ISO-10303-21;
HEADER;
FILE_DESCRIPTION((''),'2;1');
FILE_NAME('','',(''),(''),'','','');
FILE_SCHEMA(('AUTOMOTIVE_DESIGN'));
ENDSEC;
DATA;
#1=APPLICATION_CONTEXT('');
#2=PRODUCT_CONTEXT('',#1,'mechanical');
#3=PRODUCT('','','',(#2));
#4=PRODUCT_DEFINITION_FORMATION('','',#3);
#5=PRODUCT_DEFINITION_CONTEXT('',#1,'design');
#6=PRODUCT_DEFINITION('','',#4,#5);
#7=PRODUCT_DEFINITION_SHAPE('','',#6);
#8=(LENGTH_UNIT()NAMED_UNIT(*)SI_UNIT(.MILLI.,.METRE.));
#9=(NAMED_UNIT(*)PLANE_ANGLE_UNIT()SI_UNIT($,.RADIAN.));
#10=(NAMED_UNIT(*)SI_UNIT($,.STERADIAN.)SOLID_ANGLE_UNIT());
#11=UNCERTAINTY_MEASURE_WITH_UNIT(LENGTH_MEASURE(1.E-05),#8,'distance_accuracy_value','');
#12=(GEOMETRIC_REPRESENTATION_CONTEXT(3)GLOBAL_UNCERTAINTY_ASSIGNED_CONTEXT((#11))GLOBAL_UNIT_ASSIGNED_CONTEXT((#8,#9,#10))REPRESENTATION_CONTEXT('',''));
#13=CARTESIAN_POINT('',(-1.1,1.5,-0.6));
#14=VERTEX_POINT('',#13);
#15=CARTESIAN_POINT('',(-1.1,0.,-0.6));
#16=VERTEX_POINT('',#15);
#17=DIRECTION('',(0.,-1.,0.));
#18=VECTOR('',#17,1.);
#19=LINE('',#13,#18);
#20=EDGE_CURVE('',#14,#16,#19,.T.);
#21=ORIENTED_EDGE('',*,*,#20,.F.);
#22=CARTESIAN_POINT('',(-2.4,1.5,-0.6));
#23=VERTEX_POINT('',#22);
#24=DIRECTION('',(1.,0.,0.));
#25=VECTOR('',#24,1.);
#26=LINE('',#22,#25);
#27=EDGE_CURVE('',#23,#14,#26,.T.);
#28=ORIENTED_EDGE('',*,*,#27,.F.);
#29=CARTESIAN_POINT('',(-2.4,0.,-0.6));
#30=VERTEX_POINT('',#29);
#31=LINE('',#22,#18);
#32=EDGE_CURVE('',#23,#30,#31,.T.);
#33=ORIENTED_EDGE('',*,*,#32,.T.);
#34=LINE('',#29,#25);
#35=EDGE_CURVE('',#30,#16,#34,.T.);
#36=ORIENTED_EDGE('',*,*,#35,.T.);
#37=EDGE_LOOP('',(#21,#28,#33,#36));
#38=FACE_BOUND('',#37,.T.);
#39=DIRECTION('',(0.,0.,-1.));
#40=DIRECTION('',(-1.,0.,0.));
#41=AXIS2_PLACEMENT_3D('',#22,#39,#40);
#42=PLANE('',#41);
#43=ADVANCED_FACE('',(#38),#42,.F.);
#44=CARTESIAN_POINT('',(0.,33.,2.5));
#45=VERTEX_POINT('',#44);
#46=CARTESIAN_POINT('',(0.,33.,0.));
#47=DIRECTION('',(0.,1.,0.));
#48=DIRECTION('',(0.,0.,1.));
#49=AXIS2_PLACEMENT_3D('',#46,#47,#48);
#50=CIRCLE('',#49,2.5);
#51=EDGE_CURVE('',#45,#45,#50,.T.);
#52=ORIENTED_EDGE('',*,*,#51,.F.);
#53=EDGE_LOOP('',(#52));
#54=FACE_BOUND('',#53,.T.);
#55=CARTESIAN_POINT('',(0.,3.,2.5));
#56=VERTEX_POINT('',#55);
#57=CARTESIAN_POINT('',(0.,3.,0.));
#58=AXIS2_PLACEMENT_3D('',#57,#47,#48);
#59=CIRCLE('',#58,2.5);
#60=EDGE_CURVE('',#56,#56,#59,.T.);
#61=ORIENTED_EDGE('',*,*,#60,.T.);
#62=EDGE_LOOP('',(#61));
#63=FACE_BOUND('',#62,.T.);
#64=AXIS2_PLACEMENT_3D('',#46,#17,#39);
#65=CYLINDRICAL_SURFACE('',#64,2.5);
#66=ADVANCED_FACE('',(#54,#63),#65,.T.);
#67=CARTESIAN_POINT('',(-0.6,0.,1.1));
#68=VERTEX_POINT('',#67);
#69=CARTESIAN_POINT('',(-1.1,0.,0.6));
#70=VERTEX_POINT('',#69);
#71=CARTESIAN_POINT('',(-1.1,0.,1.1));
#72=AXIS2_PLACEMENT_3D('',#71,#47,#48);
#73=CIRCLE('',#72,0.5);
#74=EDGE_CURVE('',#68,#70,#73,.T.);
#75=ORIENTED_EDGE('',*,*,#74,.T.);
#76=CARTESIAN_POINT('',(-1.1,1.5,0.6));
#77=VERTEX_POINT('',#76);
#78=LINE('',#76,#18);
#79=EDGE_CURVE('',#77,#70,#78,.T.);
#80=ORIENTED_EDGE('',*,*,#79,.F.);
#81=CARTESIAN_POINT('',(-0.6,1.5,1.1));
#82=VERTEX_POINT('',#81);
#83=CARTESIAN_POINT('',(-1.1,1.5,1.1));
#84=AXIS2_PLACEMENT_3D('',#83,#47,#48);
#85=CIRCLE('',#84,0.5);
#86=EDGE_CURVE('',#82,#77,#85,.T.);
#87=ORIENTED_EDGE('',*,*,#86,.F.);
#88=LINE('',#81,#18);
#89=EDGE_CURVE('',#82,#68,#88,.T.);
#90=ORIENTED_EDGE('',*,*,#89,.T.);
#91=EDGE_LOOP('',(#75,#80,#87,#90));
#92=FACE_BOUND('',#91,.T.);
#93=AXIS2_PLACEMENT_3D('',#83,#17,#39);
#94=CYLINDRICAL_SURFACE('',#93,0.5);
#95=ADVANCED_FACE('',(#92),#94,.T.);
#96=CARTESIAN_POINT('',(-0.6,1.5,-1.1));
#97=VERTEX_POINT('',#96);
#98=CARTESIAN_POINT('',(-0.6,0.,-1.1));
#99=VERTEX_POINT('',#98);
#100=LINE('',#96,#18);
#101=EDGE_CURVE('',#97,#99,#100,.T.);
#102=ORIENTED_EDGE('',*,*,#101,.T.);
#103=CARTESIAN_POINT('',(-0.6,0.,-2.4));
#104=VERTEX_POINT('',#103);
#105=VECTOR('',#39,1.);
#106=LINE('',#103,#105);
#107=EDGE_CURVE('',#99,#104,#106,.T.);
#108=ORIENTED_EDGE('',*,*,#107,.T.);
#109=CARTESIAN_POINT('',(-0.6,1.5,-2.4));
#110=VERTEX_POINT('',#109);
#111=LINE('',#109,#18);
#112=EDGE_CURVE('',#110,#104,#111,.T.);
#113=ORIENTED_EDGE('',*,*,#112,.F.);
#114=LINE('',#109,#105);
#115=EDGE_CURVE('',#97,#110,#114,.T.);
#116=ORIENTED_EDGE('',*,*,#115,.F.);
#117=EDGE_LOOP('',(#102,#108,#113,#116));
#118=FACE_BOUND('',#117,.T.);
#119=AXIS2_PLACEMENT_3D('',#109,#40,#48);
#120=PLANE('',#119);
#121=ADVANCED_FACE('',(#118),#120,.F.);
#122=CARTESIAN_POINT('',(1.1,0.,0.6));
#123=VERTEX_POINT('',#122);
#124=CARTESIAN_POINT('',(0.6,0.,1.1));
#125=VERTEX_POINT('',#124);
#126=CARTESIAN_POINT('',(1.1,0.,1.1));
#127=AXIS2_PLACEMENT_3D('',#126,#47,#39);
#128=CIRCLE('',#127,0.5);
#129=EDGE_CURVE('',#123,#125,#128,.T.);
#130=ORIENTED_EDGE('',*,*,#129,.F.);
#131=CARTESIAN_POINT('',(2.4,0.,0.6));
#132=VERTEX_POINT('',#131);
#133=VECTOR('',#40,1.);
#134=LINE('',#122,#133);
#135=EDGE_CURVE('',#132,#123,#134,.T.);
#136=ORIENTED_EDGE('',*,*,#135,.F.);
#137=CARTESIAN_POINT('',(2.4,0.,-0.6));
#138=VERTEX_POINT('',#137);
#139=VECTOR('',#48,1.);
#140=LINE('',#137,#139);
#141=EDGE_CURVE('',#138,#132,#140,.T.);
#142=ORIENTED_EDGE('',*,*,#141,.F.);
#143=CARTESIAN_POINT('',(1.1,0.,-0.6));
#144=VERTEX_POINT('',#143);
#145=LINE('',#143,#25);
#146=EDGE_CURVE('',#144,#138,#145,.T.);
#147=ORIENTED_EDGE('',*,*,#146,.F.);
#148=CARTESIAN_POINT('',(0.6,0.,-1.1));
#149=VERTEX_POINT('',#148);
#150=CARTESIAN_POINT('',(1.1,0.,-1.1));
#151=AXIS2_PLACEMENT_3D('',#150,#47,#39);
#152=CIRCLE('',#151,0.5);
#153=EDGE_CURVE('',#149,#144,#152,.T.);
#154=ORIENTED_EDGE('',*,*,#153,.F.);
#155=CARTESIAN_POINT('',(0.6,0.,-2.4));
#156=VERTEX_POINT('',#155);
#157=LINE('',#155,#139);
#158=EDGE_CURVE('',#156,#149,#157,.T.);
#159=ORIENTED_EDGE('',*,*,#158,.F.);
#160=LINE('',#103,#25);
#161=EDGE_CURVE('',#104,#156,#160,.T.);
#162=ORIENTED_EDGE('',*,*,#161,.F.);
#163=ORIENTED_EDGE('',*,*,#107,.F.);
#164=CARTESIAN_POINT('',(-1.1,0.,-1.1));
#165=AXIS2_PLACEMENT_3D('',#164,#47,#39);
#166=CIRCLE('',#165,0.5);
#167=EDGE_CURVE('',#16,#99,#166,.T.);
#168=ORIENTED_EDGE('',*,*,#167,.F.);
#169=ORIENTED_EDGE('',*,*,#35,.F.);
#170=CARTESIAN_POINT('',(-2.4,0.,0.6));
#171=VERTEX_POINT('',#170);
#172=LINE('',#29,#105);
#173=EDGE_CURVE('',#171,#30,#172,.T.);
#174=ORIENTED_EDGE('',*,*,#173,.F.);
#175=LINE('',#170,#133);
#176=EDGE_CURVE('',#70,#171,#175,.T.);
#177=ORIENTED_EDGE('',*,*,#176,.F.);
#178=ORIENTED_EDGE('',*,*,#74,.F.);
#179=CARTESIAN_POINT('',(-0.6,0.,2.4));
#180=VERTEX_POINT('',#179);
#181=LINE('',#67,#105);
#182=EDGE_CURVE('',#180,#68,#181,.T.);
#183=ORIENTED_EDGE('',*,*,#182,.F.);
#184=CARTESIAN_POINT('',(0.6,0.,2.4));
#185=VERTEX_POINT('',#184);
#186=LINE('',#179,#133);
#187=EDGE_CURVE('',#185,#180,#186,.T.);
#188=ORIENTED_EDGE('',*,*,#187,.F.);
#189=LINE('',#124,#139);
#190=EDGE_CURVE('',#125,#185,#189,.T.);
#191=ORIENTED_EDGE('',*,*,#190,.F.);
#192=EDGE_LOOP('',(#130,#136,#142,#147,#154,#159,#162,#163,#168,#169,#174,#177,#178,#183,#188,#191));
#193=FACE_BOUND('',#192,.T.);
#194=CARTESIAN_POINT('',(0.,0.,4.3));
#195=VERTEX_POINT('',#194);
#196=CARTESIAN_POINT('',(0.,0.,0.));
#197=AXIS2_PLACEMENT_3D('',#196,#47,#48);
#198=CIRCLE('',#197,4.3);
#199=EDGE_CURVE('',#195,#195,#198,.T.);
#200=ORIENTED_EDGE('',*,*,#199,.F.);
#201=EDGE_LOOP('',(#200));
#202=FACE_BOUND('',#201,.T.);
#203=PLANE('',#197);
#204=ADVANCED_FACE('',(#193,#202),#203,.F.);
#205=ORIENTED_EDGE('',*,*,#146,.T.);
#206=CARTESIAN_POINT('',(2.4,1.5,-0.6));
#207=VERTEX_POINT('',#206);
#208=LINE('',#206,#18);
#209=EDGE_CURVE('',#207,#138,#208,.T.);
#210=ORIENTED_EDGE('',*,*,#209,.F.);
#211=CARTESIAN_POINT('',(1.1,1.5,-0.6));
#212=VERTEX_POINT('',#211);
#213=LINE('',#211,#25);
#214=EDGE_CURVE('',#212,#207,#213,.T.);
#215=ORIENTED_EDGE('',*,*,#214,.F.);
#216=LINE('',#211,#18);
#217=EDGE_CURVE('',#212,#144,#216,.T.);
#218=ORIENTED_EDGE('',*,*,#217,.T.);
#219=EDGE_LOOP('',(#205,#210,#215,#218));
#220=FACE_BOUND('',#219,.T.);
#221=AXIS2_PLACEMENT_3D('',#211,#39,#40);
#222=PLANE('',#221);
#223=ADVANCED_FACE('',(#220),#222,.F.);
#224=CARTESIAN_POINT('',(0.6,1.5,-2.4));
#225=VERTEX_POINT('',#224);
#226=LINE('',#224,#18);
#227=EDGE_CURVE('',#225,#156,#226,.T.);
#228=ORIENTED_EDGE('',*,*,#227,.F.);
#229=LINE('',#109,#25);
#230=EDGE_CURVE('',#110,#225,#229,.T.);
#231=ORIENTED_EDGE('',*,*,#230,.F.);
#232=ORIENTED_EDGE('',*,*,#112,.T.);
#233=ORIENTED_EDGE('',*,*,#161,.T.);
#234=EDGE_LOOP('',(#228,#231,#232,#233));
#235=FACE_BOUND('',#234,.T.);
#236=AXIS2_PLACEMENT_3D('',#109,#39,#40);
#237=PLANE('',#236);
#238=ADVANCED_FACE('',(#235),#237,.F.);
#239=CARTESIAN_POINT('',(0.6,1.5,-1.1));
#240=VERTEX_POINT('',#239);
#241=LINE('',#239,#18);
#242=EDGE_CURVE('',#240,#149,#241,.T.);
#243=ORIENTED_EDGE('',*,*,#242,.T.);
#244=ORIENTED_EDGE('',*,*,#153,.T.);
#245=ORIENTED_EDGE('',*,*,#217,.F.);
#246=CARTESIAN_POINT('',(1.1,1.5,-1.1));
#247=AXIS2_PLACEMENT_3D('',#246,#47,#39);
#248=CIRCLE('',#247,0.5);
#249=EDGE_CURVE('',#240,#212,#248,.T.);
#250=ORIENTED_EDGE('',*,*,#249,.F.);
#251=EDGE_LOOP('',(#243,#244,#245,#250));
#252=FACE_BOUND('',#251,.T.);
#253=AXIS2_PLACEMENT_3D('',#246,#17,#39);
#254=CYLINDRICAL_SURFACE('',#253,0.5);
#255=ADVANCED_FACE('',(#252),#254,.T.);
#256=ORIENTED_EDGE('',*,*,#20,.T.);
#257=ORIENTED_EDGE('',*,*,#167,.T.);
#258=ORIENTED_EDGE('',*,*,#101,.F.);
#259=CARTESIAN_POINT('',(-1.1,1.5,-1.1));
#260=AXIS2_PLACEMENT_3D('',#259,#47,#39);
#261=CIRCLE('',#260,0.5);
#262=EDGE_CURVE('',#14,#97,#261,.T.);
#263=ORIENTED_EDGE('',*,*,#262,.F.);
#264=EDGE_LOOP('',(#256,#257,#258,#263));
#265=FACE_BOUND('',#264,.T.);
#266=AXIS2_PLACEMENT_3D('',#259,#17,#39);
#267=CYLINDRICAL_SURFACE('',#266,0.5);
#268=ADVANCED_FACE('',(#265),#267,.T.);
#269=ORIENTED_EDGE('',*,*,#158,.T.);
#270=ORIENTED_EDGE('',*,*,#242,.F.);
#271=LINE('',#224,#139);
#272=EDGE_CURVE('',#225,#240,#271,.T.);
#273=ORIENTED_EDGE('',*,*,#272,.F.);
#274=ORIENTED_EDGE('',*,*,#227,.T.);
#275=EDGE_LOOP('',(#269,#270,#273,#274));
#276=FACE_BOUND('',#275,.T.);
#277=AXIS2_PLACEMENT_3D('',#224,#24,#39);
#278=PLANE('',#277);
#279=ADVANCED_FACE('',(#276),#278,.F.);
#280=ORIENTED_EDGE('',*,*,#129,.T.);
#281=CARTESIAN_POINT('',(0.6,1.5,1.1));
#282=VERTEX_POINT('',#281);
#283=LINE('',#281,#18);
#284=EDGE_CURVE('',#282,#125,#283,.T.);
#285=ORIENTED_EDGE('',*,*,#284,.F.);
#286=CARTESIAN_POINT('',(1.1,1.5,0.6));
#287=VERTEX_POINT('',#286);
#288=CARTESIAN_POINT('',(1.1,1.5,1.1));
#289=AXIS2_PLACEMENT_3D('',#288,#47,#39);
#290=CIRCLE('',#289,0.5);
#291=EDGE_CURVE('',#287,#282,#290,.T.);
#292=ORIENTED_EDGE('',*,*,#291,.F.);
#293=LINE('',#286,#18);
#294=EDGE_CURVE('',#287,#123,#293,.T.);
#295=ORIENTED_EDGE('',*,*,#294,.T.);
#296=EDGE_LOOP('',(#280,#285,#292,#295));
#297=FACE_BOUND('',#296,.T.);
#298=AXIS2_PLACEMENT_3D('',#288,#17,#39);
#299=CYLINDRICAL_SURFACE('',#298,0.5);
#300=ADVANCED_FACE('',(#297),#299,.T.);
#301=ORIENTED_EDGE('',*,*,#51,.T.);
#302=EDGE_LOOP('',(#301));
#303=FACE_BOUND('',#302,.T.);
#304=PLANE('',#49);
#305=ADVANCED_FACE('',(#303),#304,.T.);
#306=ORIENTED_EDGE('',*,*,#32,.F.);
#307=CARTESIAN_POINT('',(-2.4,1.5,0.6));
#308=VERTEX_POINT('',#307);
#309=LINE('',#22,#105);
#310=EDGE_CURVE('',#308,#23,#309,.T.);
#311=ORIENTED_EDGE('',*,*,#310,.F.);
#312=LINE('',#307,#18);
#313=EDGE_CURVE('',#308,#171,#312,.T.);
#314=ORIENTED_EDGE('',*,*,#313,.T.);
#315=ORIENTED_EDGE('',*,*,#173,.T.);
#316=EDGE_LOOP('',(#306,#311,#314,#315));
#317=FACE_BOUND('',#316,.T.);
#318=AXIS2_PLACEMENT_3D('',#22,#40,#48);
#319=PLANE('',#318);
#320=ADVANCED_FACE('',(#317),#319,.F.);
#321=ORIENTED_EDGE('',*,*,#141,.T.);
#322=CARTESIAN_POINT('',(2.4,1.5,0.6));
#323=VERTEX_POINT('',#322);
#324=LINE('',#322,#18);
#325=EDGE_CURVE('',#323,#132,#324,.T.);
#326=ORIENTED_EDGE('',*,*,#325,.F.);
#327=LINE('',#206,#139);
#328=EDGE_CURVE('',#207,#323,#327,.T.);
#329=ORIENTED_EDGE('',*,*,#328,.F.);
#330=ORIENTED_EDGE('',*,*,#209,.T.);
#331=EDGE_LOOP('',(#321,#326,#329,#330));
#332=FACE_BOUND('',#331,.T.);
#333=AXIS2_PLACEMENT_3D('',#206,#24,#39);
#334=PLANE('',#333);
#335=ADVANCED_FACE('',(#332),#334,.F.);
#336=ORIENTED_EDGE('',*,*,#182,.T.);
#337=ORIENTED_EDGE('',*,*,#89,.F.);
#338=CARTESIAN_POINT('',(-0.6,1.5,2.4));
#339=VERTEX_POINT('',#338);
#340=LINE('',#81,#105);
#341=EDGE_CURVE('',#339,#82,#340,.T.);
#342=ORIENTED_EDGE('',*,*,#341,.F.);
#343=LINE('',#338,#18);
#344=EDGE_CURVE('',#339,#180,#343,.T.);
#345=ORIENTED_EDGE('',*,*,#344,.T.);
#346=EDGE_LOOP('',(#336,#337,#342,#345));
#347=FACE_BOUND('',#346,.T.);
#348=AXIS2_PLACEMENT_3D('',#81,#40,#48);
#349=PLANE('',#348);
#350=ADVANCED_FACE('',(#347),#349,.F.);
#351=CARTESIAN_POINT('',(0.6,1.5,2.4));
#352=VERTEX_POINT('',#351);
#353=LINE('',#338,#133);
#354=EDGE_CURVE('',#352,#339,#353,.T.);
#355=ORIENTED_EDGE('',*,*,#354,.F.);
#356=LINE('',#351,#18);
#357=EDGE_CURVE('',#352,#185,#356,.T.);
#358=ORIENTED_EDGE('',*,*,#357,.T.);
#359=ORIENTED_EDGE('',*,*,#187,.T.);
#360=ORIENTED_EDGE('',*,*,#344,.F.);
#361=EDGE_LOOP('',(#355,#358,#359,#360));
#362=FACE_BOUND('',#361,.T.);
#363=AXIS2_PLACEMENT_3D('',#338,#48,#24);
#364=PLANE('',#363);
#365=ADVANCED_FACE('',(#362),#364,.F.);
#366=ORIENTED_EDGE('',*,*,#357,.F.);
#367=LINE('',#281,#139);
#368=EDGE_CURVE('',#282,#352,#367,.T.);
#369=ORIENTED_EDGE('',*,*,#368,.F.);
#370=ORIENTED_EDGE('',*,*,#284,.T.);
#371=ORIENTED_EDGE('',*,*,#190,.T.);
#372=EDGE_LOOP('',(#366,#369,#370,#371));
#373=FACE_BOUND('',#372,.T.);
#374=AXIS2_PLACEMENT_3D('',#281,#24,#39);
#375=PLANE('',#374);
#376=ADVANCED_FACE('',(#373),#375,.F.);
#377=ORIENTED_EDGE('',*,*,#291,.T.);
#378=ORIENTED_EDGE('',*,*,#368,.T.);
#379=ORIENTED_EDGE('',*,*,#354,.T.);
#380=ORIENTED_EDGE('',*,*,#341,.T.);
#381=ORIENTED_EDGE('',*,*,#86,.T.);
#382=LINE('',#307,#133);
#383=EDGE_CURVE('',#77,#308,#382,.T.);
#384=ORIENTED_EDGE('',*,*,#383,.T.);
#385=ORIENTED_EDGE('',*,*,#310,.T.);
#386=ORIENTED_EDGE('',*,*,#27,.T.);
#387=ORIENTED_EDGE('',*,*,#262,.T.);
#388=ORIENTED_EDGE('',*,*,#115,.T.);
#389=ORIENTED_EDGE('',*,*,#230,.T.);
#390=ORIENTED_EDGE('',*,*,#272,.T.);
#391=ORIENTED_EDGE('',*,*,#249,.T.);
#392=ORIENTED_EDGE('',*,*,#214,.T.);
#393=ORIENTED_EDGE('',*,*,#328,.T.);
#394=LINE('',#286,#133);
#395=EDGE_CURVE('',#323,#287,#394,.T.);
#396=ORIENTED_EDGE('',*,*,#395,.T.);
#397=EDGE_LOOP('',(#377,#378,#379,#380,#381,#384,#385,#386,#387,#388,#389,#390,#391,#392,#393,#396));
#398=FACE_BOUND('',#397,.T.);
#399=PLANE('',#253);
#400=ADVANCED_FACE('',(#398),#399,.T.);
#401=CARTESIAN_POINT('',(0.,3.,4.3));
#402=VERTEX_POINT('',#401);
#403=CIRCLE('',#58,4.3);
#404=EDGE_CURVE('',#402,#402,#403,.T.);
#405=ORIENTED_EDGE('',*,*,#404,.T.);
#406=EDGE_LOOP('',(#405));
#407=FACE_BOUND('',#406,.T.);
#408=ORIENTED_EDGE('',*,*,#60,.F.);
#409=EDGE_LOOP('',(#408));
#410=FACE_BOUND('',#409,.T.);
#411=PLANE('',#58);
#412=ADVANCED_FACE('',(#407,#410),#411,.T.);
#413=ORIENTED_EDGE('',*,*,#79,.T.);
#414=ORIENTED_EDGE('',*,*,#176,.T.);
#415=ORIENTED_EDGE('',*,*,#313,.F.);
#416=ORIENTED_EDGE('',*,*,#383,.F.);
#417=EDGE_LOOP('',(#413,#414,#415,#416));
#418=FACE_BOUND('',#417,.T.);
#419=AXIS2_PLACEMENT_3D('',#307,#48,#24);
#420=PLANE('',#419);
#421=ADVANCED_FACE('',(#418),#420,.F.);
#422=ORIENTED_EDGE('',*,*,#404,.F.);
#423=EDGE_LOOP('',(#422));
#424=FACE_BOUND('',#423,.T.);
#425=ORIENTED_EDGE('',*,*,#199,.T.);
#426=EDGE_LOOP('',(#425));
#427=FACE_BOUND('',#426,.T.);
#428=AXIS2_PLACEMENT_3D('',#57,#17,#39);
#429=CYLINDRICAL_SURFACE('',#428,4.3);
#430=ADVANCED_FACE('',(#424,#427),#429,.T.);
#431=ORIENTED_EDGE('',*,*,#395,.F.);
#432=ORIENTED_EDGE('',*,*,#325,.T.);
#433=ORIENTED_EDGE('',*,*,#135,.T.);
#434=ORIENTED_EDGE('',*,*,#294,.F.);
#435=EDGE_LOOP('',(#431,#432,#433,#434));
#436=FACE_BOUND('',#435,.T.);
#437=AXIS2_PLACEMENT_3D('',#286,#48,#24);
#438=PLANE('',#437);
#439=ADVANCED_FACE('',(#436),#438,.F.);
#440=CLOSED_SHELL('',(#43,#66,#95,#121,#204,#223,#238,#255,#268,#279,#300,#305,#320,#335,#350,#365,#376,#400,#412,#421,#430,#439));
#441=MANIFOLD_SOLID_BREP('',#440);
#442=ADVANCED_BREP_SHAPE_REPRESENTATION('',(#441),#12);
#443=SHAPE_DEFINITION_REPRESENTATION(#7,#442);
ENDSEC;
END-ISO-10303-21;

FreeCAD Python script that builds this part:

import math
import FreeCAD as App
import Part
import Sketcher
from FreeCAD import Vector

doc = App.newDocument("Part")
body = doc.addObject("PartDesign::Body", "Body")

sketch1 = body.newObject("Sketcher::SketchObject", "Sketch")
sketch1.AttachmentSupport = (doc.getObject("XZ_Plane"), [""])
sketch1.MapMode = "FlatFace"
sketch1.addGeometry(Part.Circle(Vector(0, 0, 0), Vector(0, 0, 1), 4.3), False)
sketch1.addConstraint([
    Sketcher.Constraint("Coincident", 0, 3, -1, 1),
    Sketcher.Constraint("Diameter", 0, 8.6),
])
pad1 = body.newObject("PartDesign::Pad", "Pad")
pad1.Profile = sketch1
pad1.Length = 3
pad1.Reversed = True

sketch2 = body.newObject("Sketcher::SketchObject", "Sketch001")
sketch2.AttachmentSupport = (doc.getObject("XZ_Plane"), [""])
sketch2.MapMode = "FlatFace"
sketch2.AttachmentOffset = App.Placement(Vector(0, 0, -3), App.Rotation())
sketch2.addGeometry(Part.Circle(Vector(0, 0, 0), Vector(0, 0, 1), 2.5), False)
sketch2.addConstraint([
    Sketcher.Constraint("Coincident", 0, 3, -1, 1),
    Sketcher.Constraint("Diameter", 0, 5.0),
])
pad2 = body.newObject("PartDesign::Pad", "Pad001")
pad2.Profile = sketch2
pad2.Length = 30
pad2.Reversed = True

sketch3 = body.newObject("Sketcher::SketchObject", "Sketch002")
sketch3.AttachmentSupport = (doc.getObject("XZ_Plane"), [""])
sketch3.MapMode = "FlatFace"
sketch3.addGeometry([
    Part.LineSegment(Vector(-0.6, 2.4, 0), Vector(-0.6, 1.1, 0)),
    Part.ArcOfCircle(Part.Circle(Vector(-1.1, 1.1, 0), Vector(0, 0, 1), 0.5), math.radians(-90), math.radians(0)),
    Part.LineSegment(Vector(-1.1, 0.6, 0), Vector(-2.4, 0.6, 0)),
    Part.LineSegment(Vector(-2.4, 0.6, 0), Vector(-2.4, -0.6, 0)),
    Part.LineSegment(Vector(-2.4, -0.6, 0), Vector(-1.1, -0.6, 0)),
    Part.ArcOfCircle(Part.Circle(Vector(-1.1, -1.1, 0), Vector(0, 0, 1), 0.5), math.radians(0), math.radians(90)),
    Part.LineSegment(Vector(-0.6, -1.1, 0), Vector(-0.6, -2.4, 0)),
    Part.LineSegment(Vector(-0.6, -2.4, 0), Vector(0.6, -2.4, 0)),
    Part.LineSegment(Vector(0.6, -2.4, 0), Vector(0.6, -1.1, 0)),
    Part.ArcOfCircle(Part.Circle(Vector(1.1, -1.1, 0), Vector(0, 0, 1), 0.5), math.radians(90), math.radians(180)),
    Part.LineSegment(Vector(1.1, -0.6, 0), Vector(2.4, -0.6, 0)),
    Part.LineSegment(Vector(2.4, -0.6, 0), Vector(2.4, 0.6, 0)),
    Part.LineSegment(Vector(2.4, 0.6, 0), Vector(1.1, 0.6, 0)),
    Part.ArcOfCircle(Part.Circle(Vector(1.1, 1.1, 0), Vector(0, 0, 1), 0.5), math.radians(180), math.radians(270)),
    Part.LineSegment(Vector(0.6, 1.1, 0), Vector(0.6, 2.4, 0)),
    Part.LineSegment(Vector(0.6, 2.4, 0), Vector(-0.6, 2.4, 0)),
], False)
sketch3.addConstraint([
    Sketcher.Constraint("Tangent", 0, 2, 1, 2),
    Sketcher.Constraint("Tangent", 1, 1, 2, 1),
    Sketcher.Constraint("Coincident", 2, 2, 3, 1),
    Sketcher.Constraint("Coincident", 3, 2, 4, 1),
    Sketcher.Constraint("Tangent", 4, 2, 5, 2),
    Sketcher.Constraint("Tangent", 5, 1, 6, 1),
    Sketcher.Constraint("Coincident", 6, 2, 7, 1),
    Sketcher.Constraint("Coincident", 7, 2, 8, 1),
    Sketcher.Constraint("Tangent", 8, 2, 9, 2),
    Sketcher.Constraint("Tangent", 9, 1, 10, 1),
    Sketcher.Constraint("Coincident", 10, 2, 11, 1),
    Sketcher.Constraint("Coincident", 11, 2, 12, 1),
    Sketcher.Constraint("Tangent", 12, 2, 13, 2),
    Sketcher.Constraint("Tangent", 13, 1, 14, 1),
    Sketcher.Constraint("Coincident", 14, 2, 15, 1),
    Sketcher.Constraint("Coincident", 15, 2, 0, 1),
    Sketcher.Constraint("Vertical", 0),
    Sketcher.Constraint("Horizontal", 2),
    Sketcher.Constraint("Vertical", 3),
    Sketcher.Constraint("Horizontal", 4),
    Sketcher.Constraint("Vertical", 6),
    Sketcher.Constraint("Horizontal", 7),
    Sketcher.Constraint("Vertical", 8),
    Sketcher.Constraint("Horizontal", 10),
    Sketcher.Constraint("Vertical", 11),
    Sketcher.Constraint("Horizontal", 12),
    Sketcher.Constraint("Vertical", 14),
    Sketcher.Constraint("Horizontal", 15),
    Sketcher.Constraint("Equal", 1, 5),
    Sketcher.Constraint("Equal", 5, 9),
    Sketcher.Constraint("Equal", 9, 13),
    Sketcher.Constraint("Symmetric", 1, 3, 9, 3, -1, 1),
    Sketcher.Constraint("Symmetric", 5, 3, 13, 3, -1, 1),
    Sketcher.Constraint("Symmetric", 5, 3, 9, 3, -2),
    Sketcher.Constraint("Equal", 4, 10),
    Sketcher.Constraint("Equal", 12, 0),
    Sketcher.Constraint("Equal", 15, 3),
    Sketcher.Constraint("Equal", 0, 6),
    Sketcher.Constraint("Radius", 1, 0.5),
    Sketcher.Constraint("DistanceX", 2, 2, 2, 1, 1.3),
    Sketcher.Constraint("DistanceX", 7, 1, 7, 2, 1.2),
])
pocket1 = body.newObject("PartDesign::Pocket", "Pocket")
pocket1.Profile = sketch3
pocket1.Length = 1.5

doc.recompute()
